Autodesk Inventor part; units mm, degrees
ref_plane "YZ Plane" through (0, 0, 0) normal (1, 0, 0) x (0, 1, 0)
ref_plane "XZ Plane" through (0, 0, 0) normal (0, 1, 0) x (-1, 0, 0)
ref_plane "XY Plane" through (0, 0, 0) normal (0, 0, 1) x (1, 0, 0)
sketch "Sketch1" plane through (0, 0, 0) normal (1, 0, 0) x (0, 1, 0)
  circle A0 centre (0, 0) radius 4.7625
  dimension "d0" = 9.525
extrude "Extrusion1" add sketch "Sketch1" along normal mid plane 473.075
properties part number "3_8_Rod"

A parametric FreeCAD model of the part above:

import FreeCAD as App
import Part
import Sketcher
Q = App.Units.Quantity

doc = App.newDocument("Part")
body = doc.addObject("PartDesign::Body", "Body")

# Sketch on YZ plane
sketch1 = doc.addObject("Sketcher::SketchObject", "Sketch")
body.addObject(sketch1)
sketch1.AttachmentSupport = (doc.YZ_Plane, [""])
sketch1.MapMode = "FlatFace"
sketch1.addGeometry(Part.Circle(App.Vector(0, 0, 0), App.Vector(0, 0, 1), 4.8), False)
sketch1.addConstraint([
    Sketcher.Constraint("Coincident", 0, 3, -1, 1),
    Sketcher.Constraint("Diameter", 0, Q("0.375 in")),
])
pad1 = doc.addObject("PartDesign::Pad", "Pad")
body.addObject(pad1)
pad1.Profile = sketch1
pad1.Length = Q("18.625 in")
pad1.Midplane = True

doc.recompute()
